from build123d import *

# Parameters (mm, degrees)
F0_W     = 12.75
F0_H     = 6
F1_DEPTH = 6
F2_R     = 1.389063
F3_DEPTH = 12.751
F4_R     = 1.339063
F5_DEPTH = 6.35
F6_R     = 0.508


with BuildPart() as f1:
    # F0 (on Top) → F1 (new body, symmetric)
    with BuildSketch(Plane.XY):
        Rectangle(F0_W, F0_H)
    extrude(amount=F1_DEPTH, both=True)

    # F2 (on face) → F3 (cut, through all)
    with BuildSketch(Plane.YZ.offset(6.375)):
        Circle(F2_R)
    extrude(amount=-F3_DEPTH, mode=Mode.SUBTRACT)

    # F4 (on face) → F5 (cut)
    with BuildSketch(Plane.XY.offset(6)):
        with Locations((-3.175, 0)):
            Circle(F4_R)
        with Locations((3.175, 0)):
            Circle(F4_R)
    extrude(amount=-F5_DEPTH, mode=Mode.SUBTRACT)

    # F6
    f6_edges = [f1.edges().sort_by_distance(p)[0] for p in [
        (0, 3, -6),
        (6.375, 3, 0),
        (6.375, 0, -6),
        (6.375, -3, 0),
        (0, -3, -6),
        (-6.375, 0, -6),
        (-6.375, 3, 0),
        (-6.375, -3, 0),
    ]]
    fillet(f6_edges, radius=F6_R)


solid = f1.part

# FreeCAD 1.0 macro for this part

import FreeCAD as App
import Part
import Sketcher
Q = App.Units.Quantity


def edges_at(feature, points):
    """Names of the edges that pass closest to the given points."""
    edges = feature.Shape.Edges
    near = lambda p: min(range(len(edges)), key=lambda i: edges[i].distToShape(Part.Vertex(*p))[0])
    return sorted({f"Edge{near(p) + 1}" for p in points})

doc = App.newDocument("Part")
params = doc.addObject("Spreadsheet::Sheet", "Params")
for row, (alias, value) in enumerate([
    ("pad1_length", "12 mm"),
    ("sketch2_diameter", "0.109375 in"),
    ("pocket2_length", "0.25 in"),
    ("fillet_radius", "0.02 in"),
], start=1):
    params.set(f"A{row}", alias)
    params.set(f"B{row}", "=" + value)
    params.setAlias(f"B{row}", alias)

body = doc.addObject("PartDesign::Body", "Body")

# Sketch on XY plane
sketch1 = doc.addObject("Sketcher::SketchObject", "Sketch")
body.addObject(sketch1)
sketch1.AttachmentSupport = (doc.XY_Plane, [""])
sketch1.MapMode = "FlatFace"
sketch1.addGeometry([
    Part.LineSegment(App.Vector(-6, 3, 0), App.Vector(-6, -3, 0)),
    Part.LineSegment(App.Vector(-6, -3, 0), App.Vector(6, -3, 0)),
    Part.LineSegment(App.Vector(6, -3, 0), App.Vector(6, 3, 0)),
    Part.LineSegment(App.Vector(6, 3, 0), App.Vector(-6, 3, 0)),
], False)
sketch1.addConstraint([
    Sketcher.Constraint("Coincident", 0, 2, 1, 1),
    Sketcher.Constraint("Coincident", 1, 2, 2, 1),
    Sketcher.Constraint("Coincident", 2, 2, 3, 1),
    Sketcher.Constraint("Coincident", 3, 2, 0, 1),
    Sketcher.Constraint("Vertical", 0),
    Sketcher.Constraint("Horizontal", 1),
    Sketcher.Constraint("Vertical", 2),
    Sketcher.Constraint("Horizontal", 3),
    Sketcher.Constraint("Symmetric", 0, 2, 2, 2, -1, 1),
    Sketcher.Constraint("DistanceX", 1, 1, 1, 2, Q("12.75 mm")),
    Sketcher.Constraint("DistanceY", 0, 2, 0, 1, Q("6 mm")),
])
pad1 = doc.addObject("PartDesign::Pad", "Pad")
body.addObject(pad1)
pad1.Profile = sketch1
pad1.setExpression("Length", "Params.pad1_length")
pad1.Midplane = True

# Sketch on YZ plane
sketch2 = doc.addObject("Sketcher::SketchObject", "Sketch001")
body.addObject(sketch2)
sketch2.AttachmentSupport = (doc.YZ_Plane, [""])
sketch2.MapMode = "FlatFace"
sketch2.AttachmentOffset = App.Placement(App.Vector(0, 0, 6.375), App.Rotation())
sketch2.addGeometry(Part.Circle(App.Vector(0, 0, 0), App.Vector(0, 0, 1), 1.4), False)
sketch2.addConstraint([
    Sketcher.Constraint("Coincident", 0, 3, -1, 1),
    Sketcher.Constraint("Diameter", 0, Q("0.109375 in")),
])
sketch2.setExpression("Constraints[1]", "Params.sketch2_diameter")
pocket1 = doc.addObject("PartDesign::Pocket", "Pocket")
body.addObject(pocket1)
pocket1.Profile = sketch2
pocket1.Type = "ThroughAll"

# Sketch on XY plane
sketch3 = doc.addObject("Sketcher::SketchObject", "Sketch002")
body.addObject(sketch3)
sketch3.AttachmentSupport = (doc.XY_Plane, [""])
sketch3.MapMode = "FlatFace"
sketch3.AttachmentOffset = App.Placement(App.Vector(0, 0, 6), App.Rotation())
sketch3.addGeometry([
    Part.Circle(App.Vector(-3.2, 0, 0), App.Vector(0, 0, 1), 1.3),
    Part.Circle(App.Vector(3.2, 0, 0), App.Vector(0, 0, 1), 1.3),
], False)
sketch3.addConstraint([
    Sketcher.Constraint("Equal", 0, 1),
    Sketcher.Constraint("Symmetric", 0, 3, 1, 3, -1, 1),
    Sketcher.Constraint("PointOnObject", 0, 3, -1),
    Sketcher.Constraint("DistanceX", 0, 3, 1, 3, Q("0.25 in")),
    Sketcher.Constraint("Diameter", 0, Q("2.678126 mm")),
])
pocket2 = doc.addObject("PartDesign::Pocket", "Pocket001")
body.addObject(pocket2)
pocket2.Profile = sketch3
pocket2.setExpression("Length", "Params.pocket2_length")
doc.recompute()

fillet = doc.addObject("PartDesign::Fillet", "Fillet")
body.addObject(fillet)
fillet.Base = (pocket2, edges_at(pocket2, [
    (0, 3, -6),
    (6.375, 3, 0),
    (6.375, 0, -6),
    (6.375, -3, 0),
    (0, -3, -6),
    (-6.375, 0, -6),
    (-6.375, 3, 0),
    (-6.375, -3, 0),
]))
fillet.setExpression("Radius", "Params.fillet_radius")

doc.recompute()
